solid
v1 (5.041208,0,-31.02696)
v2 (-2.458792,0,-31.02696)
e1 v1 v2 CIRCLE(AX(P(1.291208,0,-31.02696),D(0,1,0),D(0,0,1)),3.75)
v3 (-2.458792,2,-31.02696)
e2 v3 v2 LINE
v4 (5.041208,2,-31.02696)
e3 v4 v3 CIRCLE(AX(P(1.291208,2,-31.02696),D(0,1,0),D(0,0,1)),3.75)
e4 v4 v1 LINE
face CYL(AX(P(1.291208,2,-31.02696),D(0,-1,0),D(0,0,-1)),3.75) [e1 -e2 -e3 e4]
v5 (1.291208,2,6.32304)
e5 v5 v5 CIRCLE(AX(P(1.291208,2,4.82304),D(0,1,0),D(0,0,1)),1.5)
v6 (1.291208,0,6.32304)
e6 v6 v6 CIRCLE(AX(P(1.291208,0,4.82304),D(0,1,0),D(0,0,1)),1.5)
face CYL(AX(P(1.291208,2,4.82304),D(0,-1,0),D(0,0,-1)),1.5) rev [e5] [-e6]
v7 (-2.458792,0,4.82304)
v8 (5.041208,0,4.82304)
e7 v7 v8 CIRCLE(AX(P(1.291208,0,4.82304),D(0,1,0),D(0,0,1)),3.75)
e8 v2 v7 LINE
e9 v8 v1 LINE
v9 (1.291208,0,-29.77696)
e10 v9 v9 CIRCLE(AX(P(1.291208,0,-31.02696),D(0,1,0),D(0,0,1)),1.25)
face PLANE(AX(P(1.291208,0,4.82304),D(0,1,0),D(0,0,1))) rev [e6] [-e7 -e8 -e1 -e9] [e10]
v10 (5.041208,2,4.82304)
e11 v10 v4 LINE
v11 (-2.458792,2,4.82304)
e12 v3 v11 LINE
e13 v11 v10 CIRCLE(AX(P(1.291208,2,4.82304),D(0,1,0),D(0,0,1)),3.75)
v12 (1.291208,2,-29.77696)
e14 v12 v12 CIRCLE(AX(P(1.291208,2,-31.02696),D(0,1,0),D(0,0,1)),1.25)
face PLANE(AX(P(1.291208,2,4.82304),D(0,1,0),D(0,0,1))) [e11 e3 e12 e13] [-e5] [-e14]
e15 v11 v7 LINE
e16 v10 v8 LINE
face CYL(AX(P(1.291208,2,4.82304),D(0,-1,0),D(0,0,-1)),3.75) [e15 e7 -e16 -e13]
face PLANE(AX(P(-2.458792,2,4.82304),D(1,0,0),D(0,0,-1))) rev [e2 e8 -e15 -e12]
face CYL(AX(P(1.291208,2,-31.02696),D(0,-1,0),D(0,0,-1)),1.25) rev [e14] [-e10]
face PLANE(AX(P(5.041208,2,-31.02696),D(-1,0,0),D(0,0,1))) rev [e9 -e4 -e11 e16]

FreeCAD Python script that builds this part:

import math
import FreeCAD as App
import Part
import Sketcher

V = App.Vector
Q = App.Units.Quantity

doc = App.newDocument("Part")
body = doc.addObject("PartDesign::Body", "Body")

# Sketch on XZ plane
sketch1 = body.newObject("Sketcher::SketchObject", "Sketch")
sketch1.AttachmentSupport = (doc.getObject("XZ_Plane"), [""])
sketch1.MapMode = "FlatFace"
sketch1.addGeometry([
    Part.LineSegment(V(-2.5, -31, 0), V(-2.5, 4.8, 0)),  # 0
    Part.ArcOfCircle(Part.Circle(V(1.3, 4.8, 0), V(0, 0, 1), 3.8), math.radians(0), math.radians(180)),  # 1
    Part.LineSegment(V(5, 4.8, 0), V(5, -31, 0)),  # 2
    Part.ArcOfCircle(Part.Circle(V(1.3, -31, 0), V(0, 0, 1), 3.8), math.radians(180), math.radians(360)),  # 3
    Part.Circle(V(1.3, 4.8, 0), V(0, 0, 1), 1.5),  # 4
    Part.Circle(V(1.3, -31, 0), V(0, 0, 1), 1.2),  # 5
], False)
sketch1.addConstraint([
    Sketcher.Constraint("Tangent", 0, 2, 1, 2),
    Sketcher.Constraint("Tangent", 1, 1, 2, 1),
    Sketcher.Constraint("Tangent", 2, 2, 3, 2),
    Sketcher.Constraint("Tangent", 3, 1, 0, 1),
    Sketcher.Constraint("Vertical", 0),
    Sketcher.Constraint("Vertical", 2),
    Sketcher.Constraint("Coincident", 4, 3, 1, 3),
    Sketcher.Constraint("Coincident", 5, 3, 3, 3),
    Sketcher.Constraint("Diameter", 4, Q("3 mm")),
    Sketcher.Constraint("Diameter", 5, Q("2.5 mm")),
    Sketcher.Constraint("Radius", 1, Q("3.75 mm")),
    Sketcher.Constraint("DistanceY", 0, 1, 0, 2, Q("35.85 mm")),
    Sketcher.Constraint("DistanceY", -1, 1, 1, 3, Q("4.82304 mm")),
    Sketcher.Constraint("DistanceX", -1, 1, 1, 3, Q("1.291208 mm")),
])
pad1 = body.newObject("PartDesign::Pad", "Pad")
pad1.Profile = sketch1
pad1.Length = 2
pad1.Reversed = True

doc.recompute()
